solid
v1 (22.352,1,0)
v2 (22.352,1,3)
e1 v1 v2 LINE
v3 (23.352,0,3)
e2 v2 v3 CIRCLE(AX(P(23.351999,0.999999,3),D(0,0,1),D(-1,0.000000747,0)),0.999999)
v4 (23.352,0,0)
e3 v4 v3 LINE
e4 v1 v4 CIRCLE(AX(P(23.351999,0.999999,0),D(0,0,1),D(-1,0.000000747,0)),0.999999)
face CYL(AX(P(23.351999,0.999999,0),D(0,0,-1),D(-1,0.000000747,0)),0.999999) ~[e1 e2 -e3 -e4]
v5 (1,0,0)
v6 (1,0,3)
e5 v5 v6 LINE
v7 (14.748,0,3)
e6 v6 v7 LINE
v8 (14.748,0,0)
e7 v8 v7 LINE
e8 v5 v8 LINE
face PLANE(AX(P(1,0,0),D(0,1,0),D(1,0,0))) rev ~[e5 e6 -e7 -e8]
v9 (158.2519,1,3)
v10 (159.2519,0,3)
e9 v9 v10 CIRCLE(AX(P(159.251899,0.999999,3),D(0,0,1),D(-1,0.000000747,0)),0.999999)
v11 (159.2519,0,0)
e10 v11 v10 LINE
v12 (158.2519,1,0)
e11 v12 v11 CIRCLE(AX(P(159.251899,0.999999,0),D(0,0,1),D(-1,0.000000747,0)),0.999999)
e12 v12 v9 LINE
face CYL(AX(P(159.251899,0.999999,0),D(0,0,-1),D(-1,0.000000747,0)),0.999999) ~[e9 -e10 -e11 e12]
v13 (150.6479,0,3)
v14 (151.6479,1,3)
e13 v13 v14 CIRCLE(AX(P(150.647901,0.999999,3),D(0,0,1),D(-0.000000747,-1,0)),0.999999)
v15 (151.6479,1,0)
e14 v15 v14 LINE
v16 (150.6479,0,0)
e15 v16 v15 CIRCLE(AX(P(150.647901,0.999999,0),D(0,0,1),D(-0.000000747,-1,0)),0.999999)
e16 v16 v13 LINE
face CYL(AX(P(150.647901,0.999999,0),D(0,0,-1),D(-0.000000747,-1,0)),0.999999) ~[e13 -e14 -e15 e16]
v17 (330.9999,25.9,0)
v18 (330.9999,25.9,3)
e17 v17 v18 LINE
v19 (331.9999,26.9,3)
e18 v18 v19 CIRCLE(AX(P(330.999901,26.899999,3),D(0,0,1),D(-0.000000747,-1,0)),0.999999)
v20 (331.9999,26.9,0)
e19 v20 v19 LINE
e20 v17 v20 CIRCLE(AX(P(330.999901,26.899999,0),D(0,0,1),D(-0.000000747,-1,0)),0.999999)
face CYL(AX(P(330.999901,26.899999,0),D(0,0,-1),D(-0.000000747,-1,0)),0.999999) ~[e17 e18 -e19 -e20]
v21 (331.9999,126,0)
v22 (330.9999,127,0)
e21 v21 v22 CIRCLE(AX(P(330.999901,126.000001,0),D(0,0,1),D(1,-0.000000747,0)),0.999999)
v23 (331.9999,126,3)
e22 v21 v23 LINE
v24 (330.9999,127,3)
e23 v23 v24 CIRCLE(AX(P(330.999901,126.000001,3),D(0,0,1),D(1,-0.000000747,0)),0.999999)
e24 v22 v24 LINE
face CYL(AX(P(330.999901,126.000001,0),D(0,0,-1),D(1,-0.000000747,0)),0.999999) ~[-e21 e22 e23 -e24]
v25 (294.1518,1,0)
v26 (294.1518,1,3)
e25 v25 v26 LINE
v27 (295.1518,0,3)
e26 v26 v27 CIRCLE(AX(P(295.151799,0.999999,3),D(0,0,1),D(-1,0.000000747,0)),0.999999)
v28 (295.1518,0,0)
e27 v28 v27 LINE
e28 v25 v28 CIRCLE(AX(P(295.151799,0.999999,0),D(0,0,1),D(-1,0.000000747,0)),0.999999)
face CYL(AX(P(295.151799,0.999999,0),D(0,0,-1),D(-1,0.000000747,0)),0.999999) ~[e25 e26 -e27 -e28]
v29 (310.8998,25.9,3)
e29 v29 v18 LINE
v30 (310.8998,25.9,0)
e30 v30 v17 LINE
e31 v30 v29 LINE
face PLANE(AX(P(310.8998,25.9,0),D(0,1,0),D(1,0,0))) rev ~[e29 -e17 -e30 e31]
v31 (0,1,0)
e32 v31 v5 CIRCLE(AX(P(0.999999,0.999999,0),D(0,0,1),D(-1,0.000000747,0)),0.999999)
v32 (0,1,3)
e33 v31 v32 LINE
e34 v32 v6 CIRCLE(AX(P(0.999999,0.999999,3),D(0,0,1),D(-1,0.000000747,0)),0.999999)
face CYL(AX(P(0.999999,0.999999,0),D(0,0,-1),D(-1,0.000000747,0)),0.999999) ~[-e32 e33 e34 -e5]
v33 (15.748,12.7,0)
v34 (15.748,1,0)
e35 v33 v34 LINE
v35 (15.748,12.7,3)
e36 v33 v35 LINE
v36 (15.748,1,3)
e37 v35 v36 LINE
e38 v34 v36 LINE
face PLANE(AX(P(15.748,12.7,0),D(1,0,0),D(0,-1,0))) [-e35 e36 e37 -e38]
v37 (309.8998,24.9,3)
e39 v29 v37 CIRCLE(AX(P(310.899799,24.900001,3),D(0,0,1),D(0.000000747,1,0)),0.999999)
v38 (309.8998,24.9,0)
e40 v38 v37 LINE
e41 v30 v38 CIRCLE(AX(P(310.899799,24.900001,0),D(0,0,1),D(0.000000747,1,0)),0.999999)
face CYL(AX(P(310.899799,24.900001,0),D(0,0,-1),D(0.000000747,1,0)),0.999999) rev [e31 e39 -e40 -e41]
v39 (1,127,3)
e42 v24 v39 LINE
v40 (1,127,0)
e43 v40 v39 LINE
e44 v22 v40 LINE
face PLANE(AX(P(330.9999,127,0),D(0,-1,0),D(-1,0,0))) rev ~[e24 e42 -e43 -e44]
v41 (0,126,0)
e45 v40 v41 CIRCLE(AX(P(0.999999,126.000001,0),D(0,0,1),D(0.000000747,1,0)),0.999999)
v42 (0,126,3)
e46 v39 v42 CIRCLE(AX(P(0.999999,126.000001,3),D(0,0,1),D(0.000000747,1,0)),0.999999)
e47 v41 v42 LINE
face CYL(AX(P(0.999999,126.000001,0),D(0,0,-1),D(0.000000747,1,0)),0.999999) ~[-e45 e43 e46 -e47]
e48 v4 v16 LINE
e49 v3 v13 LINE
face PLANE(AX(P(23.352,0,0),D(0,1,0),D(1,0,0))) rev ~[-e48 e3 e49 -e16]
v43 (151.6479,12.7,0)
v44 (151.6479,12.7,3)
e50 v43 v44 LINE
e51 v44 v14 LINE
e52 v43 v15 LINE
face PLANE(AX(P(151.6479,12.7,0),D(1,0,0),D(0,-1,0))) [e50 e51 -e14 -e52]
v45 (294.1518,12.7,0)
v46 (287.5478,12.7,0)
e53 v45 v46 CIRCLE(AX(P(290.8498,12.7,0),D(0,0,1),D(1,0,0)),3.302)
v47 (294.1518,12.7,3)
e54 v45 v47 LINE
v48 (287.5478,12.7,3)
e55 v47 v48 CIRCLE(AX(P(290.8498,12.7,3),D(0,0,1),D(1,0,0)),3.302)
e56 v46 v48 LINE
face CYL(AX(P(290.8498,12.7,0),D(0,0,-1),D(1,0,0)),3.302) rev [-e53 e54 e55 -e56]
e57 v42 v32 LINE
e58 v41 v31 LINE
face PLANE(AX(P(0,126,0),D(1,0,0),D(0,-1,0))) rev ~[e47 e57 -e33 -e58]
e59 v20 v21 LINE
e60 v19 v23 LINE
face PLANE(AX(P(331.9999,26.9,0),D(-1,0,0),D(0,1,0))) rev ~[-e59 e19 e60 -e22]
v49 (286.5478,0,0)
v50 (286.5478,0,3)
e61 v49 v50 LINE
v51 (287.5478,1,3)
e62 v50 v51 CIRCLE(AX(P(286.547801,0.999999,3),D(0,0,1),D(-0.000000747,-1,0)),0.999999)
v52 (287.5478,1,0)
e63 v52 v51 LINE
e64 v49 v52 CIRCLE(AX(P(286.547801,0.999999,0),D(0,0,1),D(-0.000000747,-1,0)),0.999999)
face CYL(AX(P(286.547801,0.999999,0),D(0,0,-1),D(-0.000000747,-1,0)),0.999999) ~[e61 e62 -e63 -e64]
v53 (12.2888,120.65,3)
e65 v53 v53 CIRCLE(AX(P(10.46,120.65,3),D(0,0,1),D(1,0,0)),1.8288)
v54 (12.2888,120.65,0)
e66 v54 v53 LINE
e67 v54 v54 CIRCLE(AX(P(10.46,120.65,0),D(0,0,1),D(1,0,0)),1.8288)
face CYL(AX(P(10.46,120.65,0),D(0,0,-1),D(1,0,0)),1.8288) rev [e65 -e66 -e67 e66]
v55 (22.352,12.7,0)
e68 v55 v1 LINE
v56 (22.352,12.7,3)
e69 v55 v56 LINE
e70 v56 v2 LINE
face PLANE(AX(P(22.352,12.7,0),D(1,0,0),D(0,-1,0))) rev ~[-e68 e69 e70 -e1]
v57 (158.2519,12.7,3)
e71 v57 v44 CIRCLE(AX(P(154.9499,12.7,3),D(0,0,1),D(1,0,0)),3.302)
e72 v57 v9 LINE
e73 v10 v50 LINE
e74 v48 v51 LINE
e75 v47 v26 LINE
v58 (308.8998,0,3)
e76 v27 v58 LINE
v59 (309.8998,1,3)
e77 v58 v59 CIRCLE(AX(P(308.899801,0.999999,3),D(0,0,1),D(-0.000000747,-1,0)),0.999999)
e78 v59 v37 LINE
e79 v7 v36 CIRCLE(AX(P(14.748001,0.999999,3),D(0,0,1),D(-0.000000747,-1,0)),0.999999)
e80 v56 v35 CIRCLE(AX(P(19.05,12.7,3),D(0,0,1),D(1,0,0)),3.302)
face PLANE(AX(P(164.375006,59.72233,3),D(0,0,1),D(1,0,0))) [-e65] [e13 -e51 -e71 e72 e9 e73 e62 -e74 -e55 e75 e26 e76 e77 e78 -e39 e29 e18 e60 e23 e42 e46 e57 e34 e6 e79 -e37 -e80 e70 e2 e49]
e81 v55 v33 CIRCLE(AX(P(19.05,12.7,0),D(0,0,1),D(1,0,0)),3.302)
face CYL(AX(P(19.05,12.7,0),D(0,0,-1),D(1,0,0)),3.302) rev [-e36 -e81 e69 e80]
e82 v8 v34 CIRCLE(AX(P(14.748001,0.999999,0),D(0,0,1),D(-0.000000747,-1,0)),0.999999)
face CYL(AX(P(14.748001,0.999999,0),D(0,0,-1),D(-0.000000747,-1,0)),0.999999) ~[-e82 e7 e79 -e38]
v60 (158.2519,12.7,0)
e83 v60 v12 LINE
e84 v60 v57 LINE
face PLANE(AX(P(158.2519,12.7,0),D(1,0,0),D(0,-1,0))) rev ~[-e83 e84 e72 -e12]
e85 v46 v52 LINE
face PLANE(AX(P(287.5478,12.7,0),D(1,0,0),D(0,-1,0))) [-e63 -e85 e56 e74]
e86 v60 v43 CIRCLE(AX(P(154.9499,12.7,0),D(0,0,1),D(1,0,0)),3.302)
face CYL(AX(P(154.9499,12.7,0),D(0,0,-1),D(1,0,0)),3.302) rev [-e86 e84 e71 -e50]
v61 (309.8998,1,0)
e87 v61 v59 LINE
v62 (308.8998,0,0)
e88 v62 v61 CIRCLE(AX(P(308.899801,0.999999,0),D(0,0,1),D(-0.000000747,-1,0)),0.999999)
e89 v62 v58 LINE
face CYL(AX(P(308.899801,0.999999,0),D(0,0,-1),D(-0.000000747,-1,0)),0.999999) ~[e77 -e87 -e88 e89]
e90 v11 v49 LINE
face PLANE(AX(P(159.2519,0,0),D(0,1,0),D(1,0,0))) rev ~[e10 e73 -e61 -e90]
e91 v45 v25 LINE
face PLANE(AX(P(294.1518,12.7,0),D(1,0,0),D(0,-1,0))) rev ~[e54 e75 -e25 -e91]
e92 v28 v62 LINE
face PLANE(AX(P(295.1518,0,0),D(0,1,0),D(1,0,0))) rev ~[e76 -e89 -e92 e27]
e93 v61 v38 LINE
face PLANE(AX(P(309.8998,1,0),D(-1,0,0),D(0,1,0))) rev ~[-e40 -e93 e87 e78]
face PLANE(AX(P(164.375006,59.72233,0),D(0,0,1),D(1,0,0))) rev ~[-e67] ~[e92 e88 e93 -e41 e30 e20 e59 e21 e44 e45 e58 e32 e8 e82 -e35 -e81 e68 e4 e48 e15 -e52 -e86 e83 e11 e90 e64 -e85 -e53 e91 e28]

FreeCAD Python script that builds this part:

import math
import FreeCAD as App
import Part
import Sketcher

V = App.Vector
Q = App.Units.Quantity

doc = App.newDocument("Part")
params = doc.addObject("Spreadsheet::Sheet", "Params")
for row, (alias, value) in enumerate([
    ("sketch1_radius", "0.999999 mm"),
    ("sketch1_height", "125 mm"),
    ("sketch1_height2", "11.7 mm"),
    ("sketch1_height3", "23.9 mm"),
    ("pad1_length", "3 mm"),
], start=1):
    params.set(f"A{row}", alias)
    params.set(f"B{row}", "=" + value)
    params.setAlias(f"B{row}", alias)

body = doc.addObject("PartDesign::Body", "Body")

sketch1 = body.newObject("Sketcher::SketchObject", "Sketch")
sketch1.AttachmentSupport = (doc.getObject("XY_Plane"), [""])
sketch1.MapMode = "FlatFace"
sketch1.addGeometry([
    Part.LineSegment(V(0, 126, 0), V(0, 1, 0)),
    Part.ArcOfCircle(Part.Circle(V(1, 1, 0), V(0, 0, 1), 1), math.radians(180), math.radians(270)),
    Part.LineSegment(V(1, 0, 0), V(14.7, 0, 0)),
    Part.ArcOfCircle(Part.Circle(V(14.7, 1, 0), V(0, 0, 1), 1), math.radians(-90), math.radians(0)),
    Part.LineSegment(V(15.7, 1, 0), V(15.7, 12.7, 0)),
    Part.ArcOfCircle(Part.Circle(V(19.1, 12.7, 0), V(0, 0, 1), 3.3), math.radians(0), math.radians(180)),
    Part.LineSegment(V(22.4, 12.7, 0), V(22.4, 1, 0)),
    Part.ArcOfCircle(Part.Circle(V(23.4, 1, 0), V(0, 0, 1), 1), math.radians(180), math.radians(270)),
    Part.LineSegment(V(23.4, 0, 0), V(150.6, 0, 0)),
    Part.ArcOfCircle(Part.Circle(V(150.6, 1, 0), V(0, 0, 1), 1), math.radians(-90), math.radians(0)),
    Part.LineSegment(V(151.6, 1, 0), V(151.6, 12.7, 0)),
    Part.ArcOfCircle(Part.Circle(V(154.9, 12.7, 0), V(0, 0, 1), 3.3), math.radians(0), math.radians(180)),
    Part.LineSegment(V(158.3, 12.7, 0), V(158.3, 1, 0)),
    Part.ArcOfCircle(Part.Circle(V(159.3, 1, 0), V(0, 0, 1), 1), math.radians(180), math.radians(270)),
    Part.LineSegment(V(159.3, 0, 0), V(286.5, 0, 0)),
    Part.ArcOfCircle(Part.Circle(V(286.5, 1, 0), V(0, 0, 1), 1), math.radians(-90), math.radians(0)),
    Part.LineSegment(V(287.5, 1, 0), V(287.5, 12.7, 0)),
    Part.ArcOfCircle(Part.Circle(V(290.8, 12.7, 0), V(0, 0, 1), 3.3), math.radians(0), math.radians(180)),
    Part.LineSegment(V(294.2, 12.7, 0), V(294.2, 1, 0)),
    Part.ArcOfCircle(Part.Circle(V(295.2, 1, 0), V(0, 0, 1), 1), math.radians(180), math.radians(270)),
    Part.LineSegment(V(295.2, 0, 0), V(308.9, 0, 0)),
    Part.ArcOfCircle(Part.Circle(V(308.9, 1, 0), V(0, 0, 1), 1), math.radians(-90), math.radians(0)),
    Part.LineSegment(V(309.9, 1, 0), V(309.9, 24.9, 0)),
    Part.ArcOfCircle(Part.Circle(V(310.9, 24.9, 0), V(0, 0, 1), 1), math.radians(90), math.radians(180)),
    Part.LineSegment(V(310.9, 25.9, 0), V(331, 25.9, 0)),
    Part.ArcOfCircle(Part.Circle(V(331, 26.9, 0), V(0, 0, 1), 1), math.radians(-90), math.radians(0)),
    Part.LineSegment(V(332, 26.9, 0), V(332, 126, 0)),
    Part.ArcOfCircle(Part.Circle(V(331, 126, 0), V(0, 0, 1), 1), math.radians(0), math.radians(90)),
    Part.LineSegment(V(331, 127, 0), V(1, 127, 0)),
    Part.ArcOfCircle(Part.Circle(V(1, 126, 0), V(0, 0, 1), 1), math.radians(90), math.radians(180)),
    Part.Circle(V(10.5, 120.7, 0), V(0, 0, 1), 1.8),
], False)
sketch1.addConstraint([
    Sketcher.Constraint("Tangent", 0, 2, 1, 1),
    Sketcher.Constraint("Tangent", 1, 2, 2, 1),
    Sketcher.Constraint("Tangent", 2, 2, 3, 1),
    Sketcher.Constraint("Tangent", 3, 2, 4, 1),
    Sketcher.Constraint("Tangent", 4, 2, 5, 2),
    Sketcher.Constraint("Tangent", 5, 1, 6, 1),
    Sketcher.Constraint("Tangent", 6, 2, 7, 1),
    Sketcher.Constraint("Tangent", 7, 2, 8, 1),
    Sketcher.Constraint("Tangent", 8, 2, 9, 1),
    Sketcher.Constraint("Tangent", 9, 2, 10, 1),
    Sketcher.Constraint("Tangent", 10, 2, 11, 2),
    Sketcher.Constraint("Tangent", 11, 1, 12, 1),
    Sketcher.Constraint("Tangent", 12, 2, 13, 1),
    Sketcher.Constraint("Tangent", 13, 2, 14, 1),
    Sketcher.Constraint("Tangent", 14, 2, 15, 1),
    Sketcher.Constraint("Tangent", 15, 2, 16, 1),
    Sketcher.Constraint("Tangent", 16, 2, 17, 2),
    Sketcher.Constraint("Tangent", 17, 1, 18, 1),
    Sketcher.Constraint("Tangent", 18, 2, 19, 1),
    Sketcher.Constraint("Tangent", 19, 2, 20, 1),
    Sketcher.Constraint("Tangent", 20, 2, 21, 1),
    Sketcher.Constraint("Tangent", 21, 2, 22, 1),
    Sketcher.Constraint("Tangent", 22, 2, 23, 2),
    Sketcher.Constraint("Tangent", 23, 1, 24, 1),
    Sketcher.Constraint("Tangent", 24, 2, 25, 1),
    Sketcher.Constraint("Tangent", 25, 2, 26, 1),
    Sketcher.Constraint("Tangent", 26, 2, 27, 1),
    Sketcher.Constraint("Tangent", 27, 2, 28, 1),
    Sketcher.Constraint("Tangent", 28, 2, 29, 1),
    Sketcher.Constraint("Tangent", 29, 2, 0, 1),
    Sketcher.Constraint("Vertical", 0),
    Sketcher.Constraint("Horizontal", 2),
    Sketcher.Constraint("Vertical", 4),
    Sketcher.Constraint("Vertical", 6),
    Sketcher.Constraint("Horizontal", 8),
    Sketcher.Constraint("Vertical", 10),
    Sketcher.Constraint("Vertical", 12),
    Sketcher.Constraint("Horizontal", 14),
    Sketcher.Constraint("Vertical", 16),
    Sketcher.Constraint("Vertical", 18),
    Sketcher.Constraint("Horizontal", 20),
    Sketcher.Constraint("Vertical", 22),
    Sketcher.Constraint("Horizontal", 24),
    Sketcher.Constraint("Vertical", 26),
    Sketcher.Constraint("Horizontal", 28),
    Sketcher.Constraint("Equal", 1, 3),
    Sketcher.Constraint("Equal", 3, 7),
    Sketcher.Constraint("Equal", 7, 9),
    Sketcher.Constraint("Equal", 5, 11),
    Sketcher.Constraint("Equal", 9, 13),
    Sketcher.Constraint("Equal", 13, 15),
    Sketcher.Constraint("Equal", 11, 17),
    Sketcher.Constraint("Equal", 15, 19),
    Sketcher.Constraint("Equal", 19, 21),
    Sketcher.Constraint("Equal", 21, 23),
    Sketcher.Constraint("Equal", 23, 25),
    Sketcher.Constraint("Equal", 25, 27),
    Sketcher.Constraint("Equal", 27, 29),
    Sketcher.Constraint("PointOnObject", 0, 2, -2),
    Sketcher.Constraint("PointOnObject", 1, 2, -1),
    Sketcher.Constraint("PointOnObject", 7, 2, -1),
    Sketcher.Constraint("PointOnObject", 13, 2, -1),
    Sketcher.Constraint("PointOnObject", 19, 2, -1),
    Sketcher.Constraint("Horizontal", 5, 3, 11, 3),
    Sketcher.Constraint("Horizontal", 11, 3, 17, 3),
    Sketcher.Constraint("Equal", 8, 14),
    Sketcher.Constraint("Equal", 2, 20),
    Sketcher.Constraint("Radius", 1, Q("0.999999 mm")),
    Sketcher.Constraint("DistanceY", 0, 2, 0, 1, Q("125 mm")),
    Sketcher.Constraint("DistanceY", 4, 1, 4, 2, Q("11.7 mm")),
    Sketcher.Constraint("DistanceY", 22, 1, 22, 2, Q("23.9 mm")),
    Sketcher.Constraint("Radius", 5, Q("3.302 mm")),
    Sketcher.Constraint("Diameter", 30, Q("3.6576 mm")),
    Sketcher.Constraint("DistanceX", 2, 1, 2, 2, Q("13.748 mm")),
    Sketcher.Constraint("DistanceX", -1, 1, 30, 3, Q("10.46 mm")),
    Sketcher.Constraint("DistanceY", -1, 1, 30, 3, Q("120.65 mm")),
    Sketcher.Constraint("DistanceX", 8, 1, 8, 2, Q("127.2959 mm")),
    Sketcher.Constraint("DistanceX", 24, 1, 24, 2, Q("20.1001 mm")),
])
sketch1.setExpression("Constraints[67]", "Params.sketch1_radius")
sketch1.setExpression("Constraints[68]", "Params.sketch1_height")
sketch1.setExpression("Constraints[69]", "Params.sketch1_height2")
sketch1.setExpression("Constraints[70]", "Params.sketch1_height3")
pad1 = body.newObject("PartDesign::Pad", "Pad")
pad1.Profile = sketch1
pad1.setExpression("Length", "Params.pad1_length")

doc.recompute()
